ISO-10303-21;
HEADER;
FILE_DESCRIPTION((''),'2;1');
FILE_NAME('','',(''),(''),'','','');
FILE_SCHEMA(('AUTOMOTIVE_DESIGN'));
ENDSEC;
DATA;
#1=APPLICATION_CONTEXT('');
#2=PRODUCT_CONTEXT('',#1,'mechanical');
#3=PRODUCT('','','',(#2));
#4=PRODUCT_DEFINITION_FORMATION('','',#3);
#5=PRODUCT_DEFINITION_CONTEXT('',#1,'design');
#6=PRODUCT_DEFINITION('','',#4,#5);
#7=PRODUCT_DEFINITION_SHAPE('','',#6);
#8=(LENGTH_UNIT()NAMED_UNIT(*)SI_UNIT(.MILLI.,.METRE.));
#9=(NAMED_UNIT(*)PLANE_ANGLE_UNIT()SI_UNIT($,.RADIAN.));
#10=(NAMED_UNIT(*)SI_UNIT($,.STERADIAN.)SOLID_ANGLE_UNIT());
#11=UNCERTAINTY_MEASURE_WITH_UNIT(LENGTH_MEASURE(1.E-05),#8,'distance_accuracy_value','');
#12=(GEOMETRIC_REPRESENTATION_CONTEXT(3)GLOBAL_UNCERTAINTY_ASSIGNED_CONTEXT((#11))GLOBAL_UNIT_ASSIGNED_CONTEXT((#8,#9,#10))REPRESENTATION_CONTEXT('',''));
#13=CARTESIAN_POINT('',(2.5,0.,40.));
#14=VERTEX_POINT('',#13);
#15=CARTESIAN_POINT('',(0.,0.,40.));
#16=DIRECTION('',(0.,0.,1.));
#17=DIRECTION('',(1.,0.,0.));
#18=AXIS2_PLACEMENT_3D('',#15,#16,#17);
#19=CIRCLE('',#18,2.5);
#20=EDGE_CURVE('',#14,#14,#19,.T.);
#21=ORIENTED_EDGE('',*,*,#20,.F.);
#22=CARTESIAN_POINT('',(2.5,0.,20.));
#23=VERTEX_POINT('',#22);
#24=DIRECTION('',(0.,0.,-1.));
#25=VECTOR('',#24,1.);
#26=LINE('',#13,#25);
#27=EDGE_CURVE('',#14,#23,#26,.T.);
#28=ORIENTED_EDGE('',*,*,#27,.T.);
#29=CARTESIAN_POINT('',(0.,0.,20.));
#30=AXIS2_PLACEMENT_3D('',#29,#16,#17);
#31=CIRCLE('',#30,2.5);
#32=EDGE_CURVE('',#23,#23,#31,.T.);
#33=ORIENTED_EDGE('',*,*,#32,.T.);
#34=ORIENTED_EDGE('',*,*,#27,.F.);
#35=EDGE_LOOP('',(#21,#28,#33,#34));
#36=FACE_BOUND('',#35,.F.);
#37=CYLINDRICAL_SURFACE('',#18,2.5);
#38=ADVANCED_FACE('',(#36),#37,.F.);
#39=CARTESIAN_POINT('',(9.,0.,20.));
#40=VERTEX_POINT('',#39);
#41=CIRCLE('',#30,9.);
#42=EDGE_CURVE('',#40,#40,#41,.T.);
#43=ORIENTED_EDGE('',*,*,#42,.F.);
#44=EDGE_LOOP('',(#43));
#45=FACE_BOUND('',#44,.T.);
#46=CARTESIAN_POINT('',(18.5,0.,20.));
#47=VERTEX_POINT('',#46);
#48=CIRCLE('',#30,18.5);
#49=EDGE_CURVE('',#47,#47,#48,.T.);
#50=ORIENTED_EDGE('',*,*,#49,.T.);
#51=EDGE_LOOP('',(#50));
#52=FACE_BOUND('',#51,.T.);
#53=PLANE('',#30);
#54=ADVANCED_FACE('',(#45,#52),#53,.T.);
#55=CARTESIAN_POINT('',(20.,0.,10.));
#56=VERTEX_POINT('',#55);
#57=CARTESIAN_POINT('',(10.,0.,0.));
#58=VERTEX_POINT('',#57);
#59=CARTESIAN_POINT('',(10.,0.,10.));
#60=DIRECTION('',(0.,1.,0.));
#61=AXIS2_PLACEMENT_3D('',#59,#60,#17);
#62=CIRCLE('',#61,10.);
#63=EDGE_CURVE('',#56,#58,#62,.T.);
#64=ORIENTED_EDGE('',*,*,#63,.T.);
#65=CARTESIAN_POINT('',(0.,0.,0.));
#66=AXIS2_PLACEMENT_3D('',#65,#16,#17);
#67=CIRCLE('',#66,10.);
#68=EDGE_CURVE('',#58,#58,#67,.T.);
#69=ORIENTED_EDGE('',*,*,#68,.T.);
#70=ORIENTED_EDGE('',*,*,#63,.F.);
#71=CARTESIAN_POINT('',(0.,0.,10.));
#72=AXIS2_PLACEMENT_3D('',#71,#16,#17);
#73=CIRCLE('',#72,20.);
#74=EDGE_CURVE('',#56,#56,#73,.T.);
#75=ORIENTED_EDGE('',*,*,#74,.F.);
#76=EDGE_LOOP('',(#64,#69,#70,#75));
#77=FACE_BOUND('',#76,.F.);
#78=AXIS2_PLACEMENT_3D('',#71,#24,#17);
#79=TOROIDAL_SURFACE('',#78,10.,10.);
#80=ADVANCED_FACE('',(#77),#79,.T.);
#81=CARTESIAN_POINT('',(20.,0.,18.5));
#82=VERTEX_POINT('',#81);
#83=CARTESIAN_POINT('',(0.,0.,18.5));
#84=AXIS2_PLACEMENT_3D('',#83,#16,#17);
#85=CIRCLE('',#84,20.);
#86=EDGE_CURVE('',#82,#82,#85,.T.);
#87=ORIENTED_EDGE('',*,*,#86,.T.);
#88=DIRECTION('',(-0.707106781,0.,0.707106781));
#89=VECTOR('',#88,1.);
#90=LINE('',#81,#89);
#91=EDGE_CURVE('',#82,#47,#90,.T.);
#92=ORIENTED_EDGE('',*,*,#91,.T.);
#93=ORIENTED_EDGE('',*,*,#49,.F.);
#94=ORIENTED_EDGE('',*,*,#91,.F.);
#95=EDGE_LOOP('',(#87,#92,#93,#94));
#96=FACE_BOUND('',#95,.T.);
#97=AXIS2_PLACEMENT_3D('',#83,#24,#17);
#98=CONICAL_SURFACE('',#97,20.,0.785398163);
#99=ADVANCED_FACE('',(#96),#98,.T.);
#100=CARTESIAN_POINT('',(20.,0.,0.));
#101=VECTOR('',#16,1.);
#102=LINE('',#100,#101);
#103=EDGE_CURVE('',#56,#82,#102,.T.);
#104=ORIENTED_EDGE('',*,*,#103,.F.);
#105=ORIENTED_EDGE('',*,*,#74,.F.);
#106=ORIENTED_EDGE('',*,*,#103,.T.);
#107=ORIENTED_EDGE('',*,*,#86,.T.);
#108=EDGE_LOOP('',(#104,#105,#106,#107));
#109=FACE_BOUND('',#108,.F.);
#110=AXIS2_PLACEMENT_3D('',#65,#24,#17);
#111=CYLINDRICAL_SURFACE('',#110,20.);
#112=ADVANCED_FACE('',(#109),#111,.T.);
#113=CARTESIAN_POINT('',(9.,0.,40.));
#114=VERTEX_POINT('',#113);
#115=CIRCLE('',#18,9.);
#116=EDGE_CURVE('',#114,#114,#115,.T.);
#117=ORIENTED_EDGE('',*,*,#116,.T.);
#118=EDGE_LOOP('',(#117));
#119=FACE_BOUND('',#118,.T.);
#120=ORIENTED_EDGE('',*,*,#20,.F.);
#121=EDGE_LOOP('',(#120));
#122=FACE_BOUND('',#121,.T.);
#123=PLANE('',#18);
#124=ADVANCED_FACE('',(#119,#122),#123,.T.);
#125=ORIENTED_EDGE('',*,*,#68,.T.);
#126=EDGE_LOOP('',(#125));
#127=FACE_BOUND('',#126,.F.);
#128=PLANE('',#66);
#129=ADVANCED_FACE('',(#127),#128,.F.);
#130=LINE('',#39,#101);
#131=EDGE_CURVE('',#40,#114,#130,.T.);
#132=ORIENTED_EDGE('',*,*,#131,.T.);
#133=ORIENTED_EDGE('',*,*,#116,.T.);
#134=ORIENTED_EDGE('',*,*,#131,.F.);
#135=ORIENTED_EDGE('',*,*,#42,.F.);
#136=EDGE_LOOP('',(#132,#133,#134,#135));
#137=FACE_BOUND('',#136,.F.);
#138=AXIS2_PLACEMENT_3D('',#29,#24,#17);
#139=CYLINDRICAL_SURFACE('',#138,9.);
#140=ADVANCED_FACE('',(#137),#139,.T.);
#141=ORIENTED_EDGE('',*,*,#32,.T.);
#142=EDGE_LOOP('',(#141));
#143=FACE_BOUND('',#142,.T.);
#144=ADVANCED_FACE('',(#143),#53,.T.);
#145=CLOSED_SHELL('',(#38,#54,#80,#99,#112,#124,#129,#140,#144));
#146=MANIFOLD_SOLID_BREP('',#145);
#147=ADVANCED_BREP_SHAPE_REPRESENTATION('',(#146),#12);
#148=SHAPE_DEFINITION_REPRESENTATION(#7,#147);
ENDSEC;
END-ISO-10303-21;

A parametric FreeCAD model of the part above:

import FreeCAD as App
import Part
import Sketcher
from FreeCAD import Vector


def edges_at(feature, points):
    """Names of the edges that pass closest to the given points."""
    edges = feature.Shape.Edges
    near = lambda p: min(range(len(edges)), key=lambda i: edges[i].distToShape(Part.Vertex(*p))[0])
    return sorted({f"Edge{near(p) + 1}" for p in points})

doc = App.newDocument("Part")
body = doc.addObject("PartDesign::Body", "Body")

sketch1 = body.newObject("Sketcher::SketchObject", "Sketch")
sketch1.AttachmentSupport = (doc.getObject("XY_Plane"), [""])
sketch1.MapMode = "FlatFace"
sketch1.addGeometry(Part.Circle(Vector(0, 0, 0), Vector(0, 0, 1), 20), False)
sketch1.addConstraint(Sketcher.Constraint("Coincident", 0, 3, -1, 1))
sketch1.addConstraint(Sketcher.Constraint("Diameter", 0, 40.0))
pad1 = body.newObject("PartDesign::Pad", "Pad")
pad1.Profile = sketch1
pad1.Length = 20
doc.recompute()

fillet = body.newObject("PartDesign::Fillet", "Fillet")
fillet.Base = (pad1, edges_at(pad1, [(-20, 0, 0)]))
fillet.Radius = 10

sketch2 = body.newObject("Sketcher::SketchObject", "Sketch001")
sketch2.AttachmentSupport = (doc.getObject("XY_Plane"), [""])
sketch2.MapMode = "FlatFace"
sketch2.AttachmentOffset = App.Placement(Vector(0, 0, 20), App.Rotation())
sketch2.addGeometry(Part.Circle(Vector(0, 0, 0), Vector(0, 0, 1), 9), False)
sketch2.addConstraint(Sketcher.Constraint("Coincident", 0, 3, -1, 1))
sketch2.addConstraint(Sketcher.Constraint("Diameter", 0, 18.0))
pad2 = body.newObject("PartDesign::Pad", "Pad001")
pad2.Profile = sketch2
pad2.Length = 20

sketch3 = body.newObject("Sketcher::SketchObject", "Sketch002")
sketch3.AttachmentSupport = (doc.getObject("XY_Plane"), [""])
sketch3.MapMode = "FlatFace"
sketch3.AttachmentOffset = App.Placement(Vector(0, 0, 40), App.Rotation())
sketch3.addGeometry(Part.Circle(Vector(0, 0, 0), Vector(0, 0, 1), 2.5), False)
sketch3.addConstraint(Sketcher.Constraint("Coincident", 0, 3, -1, 1))
sketch3.addConstraint(Sketcher.Constraint("Diameter", 0, 5.0))
pocket1 = body.newObject("PartDesign::Pocket", "Pocket")
pocket1.Profile = sketch3
pocket1.Length = 20
doc.recompute()

chamfer = body.newObject("PartDesign::Chamfer", "Chamfer")
chamfer.Base = (pocket1, edges_at(pocket1, [(-20, 0, 20)]))
chamfer.Size = 1.5

doc.recompute()
